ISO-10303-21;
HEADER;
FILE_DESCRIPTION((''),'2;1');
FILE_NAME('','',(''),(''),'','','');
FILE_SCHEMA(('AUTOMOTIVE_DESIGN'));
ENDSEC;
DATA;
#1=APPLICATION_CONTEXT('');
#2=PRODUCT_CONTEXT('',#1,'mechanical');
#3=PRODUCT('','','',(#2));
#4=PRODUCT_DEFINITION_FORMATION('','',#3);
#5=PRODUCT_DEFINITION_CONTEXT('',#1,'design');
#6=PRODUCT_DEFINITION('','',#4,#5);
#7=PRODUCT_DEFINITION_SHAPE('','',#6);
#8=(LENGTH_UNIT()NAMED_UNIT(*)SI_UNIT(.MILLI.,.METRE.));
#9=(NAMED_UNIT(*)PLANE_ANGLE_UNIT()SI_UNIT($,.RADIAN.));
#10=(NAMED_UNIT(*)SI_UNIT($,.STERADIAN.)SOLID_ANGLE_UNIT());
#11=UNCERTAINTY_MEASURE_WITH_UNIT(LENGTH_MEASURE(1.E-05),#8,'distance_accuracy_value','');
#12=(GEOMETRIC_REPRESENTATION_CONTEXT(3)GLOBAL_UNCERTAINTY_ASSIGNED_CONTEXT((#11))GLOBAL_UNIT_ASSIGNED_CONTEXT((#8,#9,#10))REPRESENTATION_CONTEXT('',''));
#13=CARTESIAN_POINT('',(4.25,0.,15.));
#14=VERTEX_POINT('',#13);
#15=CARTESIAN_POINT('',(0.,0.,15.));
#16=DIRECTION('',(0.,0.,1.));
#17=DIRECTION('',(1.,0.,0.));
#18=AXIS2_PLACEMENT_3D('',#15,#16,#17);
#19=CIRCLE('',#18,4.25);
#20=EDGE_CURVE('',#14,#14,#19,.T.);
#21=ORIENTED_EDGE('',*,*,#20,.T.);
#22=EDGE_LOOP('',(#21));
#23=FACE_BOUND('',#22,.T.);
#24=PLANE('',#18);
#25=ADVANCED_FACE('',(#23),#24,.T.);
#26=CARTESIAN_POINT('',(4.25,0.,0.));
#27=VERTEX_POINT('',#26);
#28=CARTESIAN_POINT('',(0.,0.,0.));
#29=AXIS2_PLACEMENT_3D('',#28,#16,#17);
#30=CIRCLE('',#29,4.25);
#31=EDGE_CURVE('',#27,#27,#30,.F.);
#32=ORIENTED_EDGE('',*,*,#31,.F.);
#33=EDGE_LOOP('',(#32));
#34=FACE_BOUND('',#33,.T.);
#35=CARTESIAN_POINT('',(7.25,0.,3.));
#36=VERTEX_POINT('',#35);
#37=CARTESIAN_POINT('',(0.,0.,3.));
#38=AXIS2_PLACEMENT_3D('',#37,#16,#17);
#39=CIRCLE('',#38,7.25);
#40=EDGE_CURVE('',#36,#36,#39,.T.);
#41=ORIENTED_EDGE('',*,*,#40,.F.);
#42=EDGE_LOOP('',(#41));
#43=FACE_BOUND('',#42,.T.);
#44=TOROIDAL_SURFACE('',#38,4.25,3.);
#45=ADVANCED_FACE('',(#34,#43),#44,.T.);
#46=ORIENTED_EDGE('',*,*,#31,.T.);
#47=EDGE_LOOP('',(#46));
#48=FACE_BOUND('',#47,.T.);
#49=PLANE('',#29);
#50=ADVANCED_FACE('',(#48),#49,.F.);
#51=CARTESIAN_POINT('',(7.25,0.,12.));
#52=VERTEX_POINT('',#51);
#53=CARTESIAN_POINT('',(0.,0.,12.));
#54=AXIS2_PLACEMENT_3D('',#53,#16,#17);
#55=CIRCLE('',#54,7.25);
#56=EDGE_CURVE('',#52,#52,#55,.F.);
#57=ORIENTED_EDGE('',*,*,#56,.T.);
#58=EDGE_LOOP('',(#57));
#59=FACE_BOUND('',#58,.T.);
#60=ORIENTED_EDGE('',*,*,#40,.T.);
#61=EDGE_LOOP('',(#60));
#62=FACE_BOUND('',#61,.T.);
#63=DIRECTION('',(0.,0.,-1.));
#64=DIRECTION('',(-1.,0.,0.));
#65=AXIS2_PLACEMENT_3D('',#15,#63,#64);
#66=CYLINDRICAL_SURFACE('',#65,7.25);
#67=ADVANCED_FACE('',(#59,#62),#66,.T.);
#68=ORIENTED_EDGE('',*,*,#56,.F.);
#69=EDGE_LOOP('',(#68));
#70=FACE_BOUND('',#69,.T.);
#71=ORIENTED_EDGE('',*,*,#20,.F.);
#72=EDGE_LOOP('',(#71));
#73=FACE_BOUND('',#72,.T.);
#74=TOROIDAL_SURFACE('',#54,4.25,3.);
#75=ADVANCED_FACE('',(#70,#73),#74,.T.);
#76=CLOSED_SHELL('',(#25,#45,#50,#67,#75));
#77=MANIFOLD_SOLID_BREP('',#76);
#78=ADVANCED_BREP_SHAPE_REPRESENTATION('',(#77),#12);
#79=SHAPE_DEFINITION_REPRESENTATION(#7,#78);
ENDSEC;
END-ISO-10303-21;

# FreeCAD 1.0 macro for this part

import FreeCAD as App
import Part
import Sketcher
Q = App.Units.Quantity


def edges_at(feature, points):
    """Names of the edges that pass closest to the given points."""
    edges = feature.Shape.Edges
    near = lambda p: min(range(len(edges)), key=lambda i: edges[i].distToShape(Part.Vertex(*p))[0])
    return sorted({f"Edge{near(p) + 1}" for p in points})

doc = App.newDocument("Part")
body = doc.addObject("PartDesign::Body", "Body")

# Sketch on XY plane
sketch1 = body.newObject("Sketcher::SketchObject", "Sketch")
sketch1.AttachmentSupport = (doc.getObject("XY_Plane"), [""])
sketch1.MapMode = "FlatFace"
sketch1.addGeometry(Part.Circle(App.Vector(0, 0, 0), App.Vector(0, 0, 1), 7), False)
sketch1.addConstraint(Sketcher.Constraint("Coincident", 0, 3, -1, 1))
sketch1.addConstraint(Sketcher.Constraint("Diameter", 0, Q("14.5 mm")))
pad1 = body.newObject("PartDesign::Pad", "Pad")
pad1.Profile = sketch1
pad1.Length = 15
doc.recompute()

fillet = body.newObject("PartDesign::Fillet", "Fillet")
fillet.Base = (pad1, edges_at(pad1, [(-7.25, 0, 0), (-7.25, 0, 15)]))
fillet.Radius = 3

doc.recompute()
